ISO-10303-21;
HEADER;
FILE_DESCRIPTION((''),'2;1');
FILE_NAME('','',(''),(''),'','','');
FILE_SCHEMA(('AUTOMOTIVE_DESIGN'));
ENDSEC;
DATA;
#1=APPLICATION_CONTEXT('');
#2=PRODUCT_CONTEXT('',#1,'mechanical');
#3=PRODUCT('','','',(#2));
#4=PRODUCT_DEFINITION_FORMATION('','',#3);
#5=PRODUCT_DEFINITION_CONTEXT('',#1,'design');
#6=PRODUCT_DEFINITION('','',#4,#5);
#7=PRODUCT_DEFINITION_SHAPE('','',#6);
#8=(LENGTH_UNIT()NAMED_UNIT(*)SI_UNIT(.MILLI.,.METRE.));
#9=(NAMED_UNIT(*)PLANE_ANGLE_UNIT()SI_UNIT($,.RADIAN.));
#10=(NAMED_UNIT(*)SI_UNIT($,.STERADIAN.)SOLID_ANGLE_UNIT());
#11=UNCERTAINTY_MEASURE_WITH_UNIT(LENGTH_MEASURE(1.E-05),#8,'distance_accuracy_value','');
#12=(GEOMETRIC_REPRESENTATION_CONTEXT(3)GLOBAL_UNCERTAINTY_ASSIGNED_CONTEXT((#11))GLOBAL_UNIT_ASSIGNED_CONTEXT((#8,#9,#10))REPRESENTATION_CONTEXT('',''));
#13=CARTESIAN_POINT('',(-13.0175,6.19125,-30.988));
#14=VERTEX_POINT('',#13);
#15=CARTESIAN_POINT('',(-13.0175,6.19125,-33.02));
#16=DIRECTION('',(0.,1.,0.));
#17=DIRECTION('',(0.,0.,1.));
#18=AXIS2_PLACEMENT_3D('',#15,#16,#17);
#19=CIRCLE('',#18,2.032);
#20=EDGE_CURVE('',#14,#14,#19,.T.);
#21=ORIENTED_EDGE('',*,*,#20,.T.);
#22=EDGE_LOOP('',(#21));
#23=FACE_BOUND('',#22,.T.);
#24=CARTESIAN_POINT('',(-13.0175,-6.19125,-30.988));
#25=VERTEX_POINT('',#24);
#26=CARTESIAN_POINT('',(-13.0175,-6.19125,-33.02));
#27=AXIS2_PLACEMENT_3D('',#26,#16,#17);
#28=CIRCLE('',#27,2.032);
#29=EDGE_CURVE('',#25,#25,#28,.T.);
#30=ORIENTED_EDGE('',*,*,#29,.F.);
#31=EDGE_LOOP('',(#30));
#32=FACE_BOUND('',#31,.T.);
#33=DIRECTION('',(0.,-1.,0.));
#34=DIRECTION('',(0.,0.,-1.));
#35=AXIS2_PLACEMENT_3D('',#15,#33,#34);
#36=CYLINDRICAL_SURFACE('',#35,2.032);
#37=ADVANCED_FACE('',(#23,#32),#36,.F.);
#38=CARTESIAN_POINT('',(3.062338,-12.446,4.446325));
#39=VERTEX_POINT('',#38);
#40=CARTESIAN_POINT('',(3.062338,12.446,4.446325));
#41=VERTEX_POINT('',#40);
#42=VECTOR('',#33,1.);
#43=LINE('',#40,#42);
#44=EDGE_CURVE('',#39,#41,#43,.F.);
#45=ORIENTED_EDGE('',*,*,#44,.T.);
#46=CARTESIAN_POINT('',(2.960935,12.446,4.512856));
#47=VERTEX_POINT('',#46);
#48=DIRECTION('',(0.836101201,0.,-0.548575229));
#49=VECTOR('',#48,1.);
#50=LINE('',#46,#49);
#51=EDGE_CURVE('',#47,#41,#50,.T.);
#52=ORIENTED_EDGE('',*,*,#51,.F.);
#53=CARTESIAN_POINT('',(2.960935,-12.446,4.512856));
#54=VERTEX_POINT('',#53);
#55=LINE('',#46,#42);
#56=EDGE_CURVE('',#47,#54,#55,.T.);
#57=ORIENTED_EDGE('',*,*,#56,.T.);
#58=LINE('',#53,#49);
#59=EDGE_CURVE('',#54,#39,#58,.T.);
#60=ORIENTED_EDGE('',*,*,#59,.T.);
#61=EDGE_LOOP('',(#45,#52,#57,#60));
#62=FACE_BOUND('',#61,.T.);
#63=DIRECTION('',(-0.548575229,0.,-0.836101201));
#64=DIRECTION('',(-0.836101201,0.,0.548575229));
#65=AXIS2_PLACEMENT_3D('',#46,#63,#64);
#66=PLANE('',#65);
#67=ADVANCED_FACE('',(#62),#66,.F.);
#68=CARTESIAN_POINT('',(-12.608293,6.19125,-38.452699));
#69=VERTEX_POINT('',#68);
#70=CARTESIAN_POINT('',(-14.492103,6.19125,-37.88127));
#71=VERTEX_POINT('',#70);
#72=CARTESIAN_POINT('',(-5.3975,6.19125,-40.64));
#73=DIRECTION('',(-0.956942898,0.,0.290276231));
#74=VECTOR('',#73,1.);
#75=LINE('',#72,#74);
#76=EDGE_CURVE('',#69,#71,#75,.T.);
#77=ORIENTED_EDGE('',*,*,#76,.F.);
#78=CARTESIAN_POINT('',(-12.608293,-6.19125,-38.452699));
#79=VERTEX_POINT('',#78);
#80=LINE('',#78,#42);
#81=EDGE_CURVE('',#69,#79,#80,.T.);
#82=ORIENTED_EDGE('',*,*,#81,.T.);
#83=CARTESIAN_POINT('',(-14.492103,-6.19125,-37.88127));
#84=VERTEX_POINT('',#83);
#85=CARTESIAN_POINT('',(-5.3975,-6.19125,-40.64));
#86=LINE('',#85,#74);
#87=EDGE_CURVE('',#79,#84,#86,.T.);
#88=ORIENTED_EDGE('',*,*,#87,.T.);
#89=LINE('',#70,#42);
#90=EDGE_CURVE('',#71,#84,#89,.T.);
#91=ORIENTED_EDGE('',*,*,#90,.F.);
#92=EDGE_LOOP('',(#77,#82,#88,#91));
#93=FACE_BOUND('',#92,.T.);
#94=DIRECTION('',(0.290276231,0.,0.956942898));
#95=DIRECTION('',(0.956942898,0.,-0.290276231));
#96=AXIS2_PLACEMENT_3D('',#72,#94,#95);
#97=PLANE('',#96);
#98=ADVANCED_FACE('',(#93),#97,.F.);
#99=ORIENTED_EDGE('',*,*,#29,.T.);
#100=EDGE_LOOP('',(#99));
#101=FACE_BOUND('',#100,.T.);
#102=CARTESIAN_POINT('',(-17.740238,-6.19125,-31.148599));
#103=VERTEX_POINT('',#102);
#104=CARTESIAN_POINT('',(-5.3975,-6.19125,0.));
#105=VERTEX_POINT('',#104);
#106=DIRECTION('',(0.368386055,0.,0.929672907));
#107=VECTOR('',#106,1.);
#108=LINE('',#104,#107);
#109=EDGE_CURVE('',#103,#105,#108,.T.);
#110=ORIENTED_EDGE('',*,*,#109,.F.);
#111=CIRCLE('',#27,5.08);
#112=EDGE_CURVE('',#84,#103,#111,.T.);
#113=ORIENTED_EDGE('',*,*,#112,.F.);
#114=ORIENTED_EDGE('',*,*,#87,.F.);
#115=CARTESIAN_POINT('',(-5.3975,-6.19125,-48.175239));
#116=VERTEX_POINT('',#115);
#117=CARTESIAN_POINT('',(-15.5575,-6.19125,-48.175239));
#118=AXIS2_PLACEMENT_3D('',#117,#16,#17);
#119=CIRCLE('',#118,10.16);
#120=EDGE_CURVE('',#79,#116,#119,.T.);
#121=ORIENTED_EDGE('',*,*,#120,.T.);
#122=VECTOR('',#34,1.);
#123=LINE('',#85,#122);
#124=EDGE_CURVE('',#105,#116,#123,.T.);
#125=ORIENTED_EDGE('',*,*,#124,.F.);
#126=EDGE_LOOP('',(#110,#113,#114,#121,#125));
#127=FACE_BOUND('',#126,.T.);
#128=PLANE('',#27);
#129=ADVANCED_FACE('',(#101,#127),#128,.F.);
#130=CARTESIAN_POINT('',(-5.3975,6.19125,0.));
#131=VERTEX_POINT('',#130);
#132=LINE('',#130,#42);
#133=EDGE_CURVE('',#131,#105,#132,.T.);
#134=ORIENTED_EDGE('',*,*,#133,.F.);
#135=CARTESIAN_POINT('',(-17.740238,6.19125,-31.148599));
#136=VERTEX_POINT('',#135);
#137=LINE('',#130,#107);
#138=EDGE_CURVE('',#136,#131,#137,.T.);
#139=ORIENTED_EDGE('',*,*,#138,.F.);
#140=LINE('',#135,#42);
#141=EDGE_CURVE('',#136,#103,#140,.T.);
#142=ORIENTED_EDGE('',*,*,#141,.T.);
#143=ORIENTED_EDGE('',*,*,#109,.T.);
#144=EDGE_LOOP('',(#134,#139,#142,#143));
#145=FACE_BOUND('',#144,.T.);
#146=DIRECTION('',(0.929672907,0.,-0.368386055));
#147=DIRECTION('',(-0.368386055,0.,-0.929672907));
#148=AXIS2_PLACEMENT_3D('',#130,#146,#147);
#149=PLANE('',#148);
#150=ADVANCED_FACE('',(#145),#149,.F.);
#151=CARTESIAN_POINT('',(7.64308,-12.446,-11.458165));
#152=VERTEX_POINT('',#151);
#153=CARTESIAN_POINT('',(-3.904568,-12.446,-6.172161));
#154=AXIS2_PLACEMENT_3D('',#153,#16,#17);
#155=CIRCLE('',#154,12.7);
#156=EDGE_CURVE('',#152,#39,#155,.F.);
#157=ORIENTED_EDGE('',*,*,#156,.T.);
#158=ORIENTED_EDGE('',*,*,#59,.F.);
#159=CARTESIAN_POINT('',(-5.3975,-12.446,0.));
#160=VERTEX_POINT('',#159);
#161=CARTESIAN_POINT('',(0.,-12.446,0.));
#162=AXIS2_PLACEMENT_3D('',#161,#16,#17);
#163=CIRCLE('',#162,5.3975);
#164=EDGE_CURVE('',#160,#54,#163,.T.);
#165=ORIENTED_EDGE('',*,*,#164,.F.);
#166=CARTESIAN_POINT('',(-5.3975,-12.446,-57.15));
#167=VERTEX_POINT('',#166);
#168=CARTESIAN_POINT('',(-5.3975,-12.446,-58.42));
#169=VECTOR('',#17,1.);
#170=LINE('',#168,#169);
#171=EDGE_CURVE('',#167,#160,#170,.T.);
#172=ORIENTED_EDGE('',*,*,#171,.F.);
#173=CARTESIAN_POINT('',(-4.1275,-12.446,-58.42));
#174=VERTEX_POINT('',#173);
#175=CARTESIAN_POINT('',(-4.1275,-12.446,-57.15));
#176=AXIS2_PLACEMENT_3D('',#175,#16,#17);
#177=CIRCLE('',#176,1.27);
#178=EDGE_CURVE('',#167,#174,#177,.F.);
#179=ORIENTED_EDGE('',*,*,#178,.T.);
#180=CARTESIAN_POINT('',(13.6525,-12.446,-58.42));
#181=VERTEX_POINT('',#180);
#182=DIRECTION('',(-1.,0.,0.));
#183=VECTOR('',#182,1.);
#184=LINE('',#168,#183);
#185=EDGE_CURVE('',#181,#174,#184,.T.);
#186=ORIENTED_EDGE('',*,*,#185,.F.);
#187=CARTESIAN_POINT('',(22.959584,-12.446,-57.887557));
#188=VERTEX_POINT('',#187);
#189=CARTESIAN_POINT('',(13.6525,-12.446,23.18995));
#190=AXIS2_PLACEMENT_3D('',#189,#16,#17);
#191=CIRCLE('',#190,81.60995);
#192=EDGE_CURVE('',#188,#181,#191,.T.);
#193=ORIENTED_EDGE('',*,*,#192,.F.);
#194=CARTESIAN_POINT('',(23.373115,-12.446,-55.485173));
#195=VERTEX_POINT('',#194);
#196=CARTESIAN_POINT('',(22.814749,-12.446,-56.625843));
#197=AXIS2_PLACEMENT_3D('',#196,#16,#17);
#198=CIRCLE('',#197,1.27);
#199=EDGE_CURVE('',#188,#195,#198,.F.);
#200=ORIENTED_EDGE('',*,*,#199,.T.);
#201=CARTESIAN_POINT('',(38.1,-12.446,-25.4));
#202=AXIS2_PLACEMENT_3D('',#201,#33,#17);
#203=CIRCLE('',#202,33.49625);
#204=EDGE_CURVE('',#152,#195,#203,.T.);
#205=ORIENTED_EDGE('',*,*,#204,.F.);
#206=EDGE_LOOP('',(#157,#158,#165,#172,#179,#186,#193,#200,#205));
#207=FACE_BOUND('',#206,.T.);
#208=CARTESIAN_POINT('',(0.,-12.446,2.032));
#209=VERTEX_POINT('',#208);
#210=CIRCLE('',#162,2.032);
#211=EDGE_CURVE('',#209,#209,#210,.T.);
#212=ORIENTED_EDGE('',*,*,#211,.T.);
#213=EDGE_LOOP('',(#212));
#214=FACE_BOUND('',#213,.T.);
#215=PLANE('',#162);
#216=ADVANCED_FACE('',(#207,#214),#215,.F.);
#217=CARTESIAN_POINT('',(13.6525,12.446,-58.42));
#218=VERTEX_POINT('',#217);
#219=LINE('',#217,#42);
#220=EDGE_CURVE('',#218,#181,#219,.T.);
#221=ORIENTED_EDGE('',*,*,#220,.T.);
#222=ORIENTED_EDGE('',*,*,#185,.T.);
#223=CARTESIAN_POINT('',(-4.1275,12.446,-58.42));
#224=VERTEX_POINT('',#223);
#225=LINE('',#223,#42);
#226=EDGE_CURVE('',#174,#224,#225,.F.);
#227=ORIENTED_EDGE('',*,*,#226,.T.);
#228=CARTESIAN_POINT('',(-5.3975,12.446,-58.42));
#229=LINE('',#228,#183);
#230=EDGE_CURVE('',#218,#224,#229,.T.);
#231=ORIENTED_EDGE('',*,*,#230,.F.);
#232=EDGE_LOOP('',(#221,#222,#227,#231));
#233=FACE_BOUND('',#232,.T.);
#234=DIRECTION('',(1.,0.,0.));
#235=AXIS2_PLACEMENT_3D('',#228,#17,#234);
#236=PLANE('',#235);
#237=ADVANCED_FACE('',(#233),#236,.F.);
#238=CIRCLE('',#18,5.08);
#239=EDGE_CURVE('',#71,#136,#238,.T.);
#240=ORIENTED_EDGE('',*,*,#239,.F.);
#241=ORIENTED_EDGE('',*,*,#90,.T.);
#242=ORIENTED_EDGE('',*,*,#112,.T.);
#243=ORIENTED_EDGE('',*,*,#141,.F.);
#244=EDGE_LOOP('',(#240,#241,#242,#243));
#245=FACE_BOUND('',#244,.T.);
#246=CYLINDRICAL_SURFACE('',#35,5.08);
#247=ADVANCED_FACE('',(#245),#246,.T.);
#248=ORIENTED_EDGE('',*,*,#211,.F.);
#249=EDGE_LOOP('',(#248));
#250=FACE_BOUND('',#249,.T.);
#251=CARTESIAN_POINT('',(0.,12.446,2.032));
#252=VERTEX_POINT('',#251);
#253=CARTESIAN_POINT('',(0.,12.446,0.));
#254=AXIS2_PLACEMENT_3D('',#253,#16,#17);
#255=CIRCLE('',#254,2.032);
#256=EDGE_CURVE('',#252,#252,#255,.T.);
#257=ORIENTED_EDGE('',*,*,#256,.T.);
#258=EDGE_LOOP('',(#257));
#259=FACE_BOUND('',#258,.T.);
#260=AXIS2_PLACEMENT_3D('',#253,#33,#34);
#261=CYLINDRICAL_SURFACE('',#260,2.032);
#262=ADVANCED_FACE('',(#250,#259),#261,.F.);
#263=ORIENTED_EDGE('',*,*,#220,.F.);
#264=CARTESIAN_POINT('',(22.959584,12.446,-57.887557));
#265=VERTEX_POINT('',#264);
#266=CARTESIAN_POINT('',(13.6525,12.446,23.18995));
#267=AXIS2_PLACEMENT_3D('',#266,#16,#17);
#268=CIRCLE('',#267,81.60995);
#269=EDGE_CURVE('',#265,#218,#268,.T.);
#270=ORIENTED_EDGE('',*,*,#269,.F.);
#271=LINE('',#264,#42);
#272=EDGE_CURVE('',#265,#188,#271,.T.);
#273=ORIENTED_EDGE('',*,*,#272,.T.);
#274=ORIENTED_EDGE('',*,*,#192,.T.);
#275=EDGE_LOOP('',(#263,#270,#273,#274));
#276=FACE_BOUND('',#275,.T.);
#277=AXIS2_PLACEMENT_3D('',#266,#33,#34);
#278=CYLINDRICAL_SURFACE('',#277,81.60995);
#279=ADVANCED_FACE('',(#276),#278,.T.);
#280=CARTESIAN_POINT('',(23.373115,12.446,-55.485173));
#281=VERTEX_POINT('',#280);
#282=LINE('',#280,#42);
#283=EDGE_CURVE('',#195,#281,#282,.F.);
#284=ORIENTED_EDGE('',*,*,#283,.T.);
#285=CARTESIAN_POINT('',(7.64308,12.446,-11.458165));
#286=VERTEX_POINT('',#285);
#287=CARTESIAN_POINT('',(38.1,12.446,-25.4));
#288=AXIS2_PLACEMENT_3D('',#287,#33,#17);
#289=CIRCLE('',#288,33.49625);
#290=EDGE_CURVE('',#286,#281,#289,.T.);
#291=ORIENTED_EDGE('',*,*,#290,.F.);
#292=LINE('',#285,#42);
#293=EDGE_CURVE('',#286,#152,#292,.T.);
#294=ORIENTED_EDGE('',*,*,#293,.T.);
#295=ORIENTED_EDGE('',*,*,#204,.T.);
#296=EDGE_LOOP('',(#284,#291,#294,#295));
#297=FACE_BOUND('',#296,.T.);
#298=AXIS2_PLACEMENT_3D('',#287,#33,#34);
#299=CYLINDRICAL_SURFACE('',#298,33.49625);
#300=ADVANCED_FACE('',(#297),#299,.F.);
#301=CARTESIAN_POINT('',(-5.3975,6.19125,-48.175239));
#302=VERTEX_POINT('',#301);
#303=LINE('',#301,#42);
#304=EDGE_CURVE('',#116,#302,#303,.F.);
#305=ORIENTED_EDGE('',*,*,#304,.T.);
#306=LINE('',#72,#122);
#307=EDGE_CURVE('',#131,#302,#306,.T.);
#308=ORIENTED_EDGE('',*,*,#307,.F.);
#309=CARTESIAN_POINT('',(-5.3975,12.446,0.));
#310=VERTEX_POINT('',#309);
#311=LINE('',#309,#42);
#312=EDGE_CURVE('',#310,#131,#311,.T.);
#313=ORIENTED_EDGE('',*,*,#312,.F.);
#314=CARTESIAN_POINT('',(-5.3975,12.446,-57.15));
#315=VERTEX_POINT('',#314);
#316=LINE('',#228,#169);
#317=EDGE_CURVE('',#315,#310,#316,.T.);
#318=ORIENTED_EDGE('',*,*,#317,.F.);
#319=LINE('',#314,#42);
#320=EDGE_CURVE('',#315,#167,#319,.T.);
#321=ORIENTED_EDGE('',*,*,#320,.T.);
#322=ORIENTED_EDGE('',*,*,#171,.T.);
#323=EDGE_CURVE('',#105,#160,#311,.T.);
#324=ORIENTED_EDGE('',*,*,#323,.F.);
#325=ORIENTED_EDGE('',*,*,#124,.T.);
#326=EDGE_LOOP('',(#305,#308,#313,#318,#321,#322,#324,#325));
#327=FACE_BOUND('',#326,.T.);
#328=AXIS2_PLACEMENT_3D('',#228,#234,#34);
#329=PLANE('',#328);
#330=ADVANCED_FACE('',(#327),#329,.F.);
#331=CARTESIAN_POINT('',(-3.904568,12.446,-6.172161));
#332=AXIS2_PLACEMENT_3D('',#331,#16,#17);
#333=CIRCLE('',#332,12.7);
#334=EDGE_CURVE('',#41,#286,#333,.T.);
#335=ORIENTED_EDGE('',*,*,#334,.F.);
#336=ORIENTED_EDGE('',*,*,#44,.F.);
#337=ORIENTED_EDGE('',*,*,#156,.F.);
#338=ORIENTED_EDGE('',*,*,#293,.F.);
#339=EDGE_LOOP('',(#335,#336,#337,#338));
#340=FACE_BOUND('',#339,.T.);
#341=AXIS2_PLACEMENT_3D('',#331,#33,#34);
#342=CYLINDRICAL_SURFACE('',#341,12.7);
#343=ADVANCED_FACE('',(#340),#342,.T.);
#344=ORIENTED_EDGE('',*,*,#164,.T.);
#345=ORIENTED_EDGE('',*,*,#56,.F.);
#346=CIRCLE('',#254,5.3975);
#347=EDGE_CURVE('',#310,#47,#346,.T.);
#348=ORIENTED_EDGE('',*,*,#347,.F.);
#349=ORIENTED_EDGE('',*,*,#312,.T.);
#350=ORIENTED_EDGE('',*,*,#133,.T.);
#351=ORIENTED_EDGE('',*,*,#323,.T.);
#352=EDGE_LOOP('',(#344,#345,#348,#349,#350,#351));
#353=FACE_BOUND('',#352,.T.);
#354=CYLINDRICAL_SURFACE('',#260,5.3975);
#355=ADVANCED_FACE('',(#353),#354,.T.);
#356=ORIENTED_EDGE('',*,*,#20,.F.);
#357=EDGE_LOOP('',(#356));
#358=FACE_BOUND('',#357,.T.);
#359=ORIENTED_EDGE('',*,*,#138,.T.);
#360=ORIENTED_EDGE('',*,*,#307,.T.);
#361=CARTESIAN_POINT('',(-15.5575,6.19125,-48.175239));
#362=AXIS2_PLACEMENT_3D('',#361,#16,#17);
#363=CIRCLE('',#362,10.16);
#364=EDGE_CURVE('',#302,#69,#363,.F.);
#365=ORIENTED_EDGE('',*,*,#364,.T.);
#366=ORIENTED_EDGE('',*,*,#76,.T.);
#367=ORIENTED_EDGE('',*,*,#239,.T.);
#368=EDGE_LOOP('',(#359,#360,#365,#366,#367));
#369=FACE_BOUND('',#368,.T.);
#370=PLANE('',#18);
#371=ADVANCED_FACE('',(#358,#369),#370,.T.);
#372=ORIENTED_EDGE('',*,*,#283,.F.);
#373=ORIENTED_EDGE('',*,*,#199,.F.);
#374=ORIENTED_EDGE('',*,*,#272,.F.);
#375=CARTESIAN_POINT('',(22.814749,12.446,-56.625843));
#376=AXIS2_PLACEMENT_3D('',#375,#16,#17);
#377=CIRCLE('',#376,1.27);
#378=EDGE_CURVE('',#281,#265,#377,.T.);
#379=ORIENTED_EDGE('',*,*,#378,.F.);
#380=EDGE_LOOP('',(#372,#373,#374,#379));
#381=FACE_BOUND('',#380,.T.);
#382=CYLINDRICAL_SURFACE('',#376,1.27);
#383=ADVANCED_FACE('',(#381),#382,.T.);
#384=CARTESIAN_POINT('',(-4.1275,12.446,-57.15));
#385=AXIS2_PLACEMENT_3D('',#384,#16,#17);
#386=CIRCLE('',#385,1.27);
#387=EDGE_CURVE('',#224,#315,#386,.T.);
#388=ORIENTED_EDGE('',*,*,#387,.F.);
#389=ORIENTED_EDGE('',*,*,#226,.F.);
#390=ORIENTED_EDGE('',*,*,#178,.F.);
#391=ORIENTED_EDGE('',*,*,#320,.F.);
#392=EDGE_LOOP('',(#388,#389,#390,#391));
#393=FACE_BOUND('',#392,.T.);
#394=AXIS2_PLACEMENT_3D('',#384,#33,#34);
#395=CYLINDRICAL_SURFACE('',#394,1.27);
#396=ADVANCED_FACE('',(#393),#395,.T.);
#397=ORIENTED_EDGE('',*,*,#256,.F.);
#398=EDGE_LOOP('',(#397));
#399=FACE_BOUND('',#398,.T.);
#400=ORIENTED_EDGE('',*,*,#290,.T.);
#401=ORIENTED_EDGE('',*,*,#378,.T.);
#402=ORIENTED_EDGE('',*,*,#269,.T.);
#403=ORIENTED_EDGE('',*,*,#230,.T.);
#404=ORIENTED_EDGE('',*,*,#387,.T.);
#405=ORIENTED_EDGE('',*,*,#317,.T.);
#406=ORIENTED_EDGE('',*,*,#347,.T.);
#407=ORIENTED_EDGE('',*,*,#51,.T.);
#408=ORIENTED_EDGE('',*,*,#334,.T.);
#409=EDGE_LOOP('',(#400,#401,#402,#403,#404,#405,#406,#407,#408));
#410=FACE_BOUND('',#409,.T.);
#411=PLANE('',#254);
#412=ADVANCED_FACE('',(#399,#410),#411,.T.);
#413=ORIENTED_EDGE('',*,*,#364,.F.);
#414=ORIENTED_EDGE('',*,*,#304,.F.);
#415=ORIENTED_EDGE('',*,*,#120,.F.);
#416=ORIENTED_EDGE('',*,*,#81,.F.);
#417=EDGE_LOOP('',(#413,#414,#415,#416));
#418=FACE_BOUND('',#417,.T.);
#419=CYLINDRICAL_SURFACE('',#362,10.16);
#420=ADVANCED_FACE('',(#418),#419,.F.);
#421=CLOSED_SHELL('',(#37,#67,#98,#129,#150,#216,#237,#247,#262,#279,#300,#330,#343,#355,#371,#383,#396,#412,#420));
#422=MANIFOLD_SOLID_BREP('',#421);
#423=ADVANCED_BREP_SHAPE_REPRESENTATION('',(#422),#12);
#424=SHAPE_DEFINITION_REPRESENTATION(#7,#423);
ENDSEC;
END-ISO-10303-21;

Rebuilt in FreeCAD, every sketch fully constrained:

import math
import FreeCAD as App
import Part
import Sketcher
from FreeCAD import Vector
Q = App.Units.Quantity


def edges_at(feature, points):
    """Names of the edges that pass closest to the given points."""
    edges = feature.Shape.Edges
    near = lambda p: min(range(len(edges)), key=lambda i: edges[i].distToShape(Part.Vertex(*p))[0])
    return sorted({f"Edge{near(p) + 1}" for p in points})

doc = App.newDocument("Part")
body = doc.addObject("PartDesign::Body", "Body")

# Sketch on XZ plane
sketch1 = body.newObject("Sketcher::SketchObject", "Sketch")
sketch1.AttachmentSupport = (doc.getObject("XZ_Plane"), [""])
sketch1.MapMode = "FlatFace"
sketch1.addGeometry([
    Part.LineSegment(Vector(3, 4.5, 0), Vector(13.7, -2.5, 0)),  # 0
    Part.ArcOfCircle(Part.Circle(Vector(38.1, -25.4, 0), Vector(0, 0, 1), 33.5), math.radians(137), math.radians(252)),  # 1
    Part.ArcOfCircle(Part.Circle(Vector(13.7, 23.2, 0), Vector(0, 0, 1), 81.6), math.radians(-90), math.radians(-80.14)),  # 2
    Part.LineSegment(Vector(13.7, -58.4, 0), Vector(-5.4, -58.4, 0)),  # 3
    Part.LineSegment(Vector(-5.4, -58.4, 0), Vector(-5.4, 0, 0)),  # 4
    Part.ArcOfCircle(Part.Circle(Vector(0, 0, 0), Vector(0, 0, 1), 5.4), math.radians(57), math.radians(180)),  # 5
    Part.Circle(Vector(0, 0, 0), Vector(0, 0, 1), 2),  # 6
], False)
sketch1.addConstraint([
    Sketcher.Constraint("Coincident", 0, 2, 1, 1),
    Sketcher.Constraint("Coincident", 1, 2, 2, 2),
    Sketcher.Constraint("Tangent", 2, 1, 3, 1),
    Sketcher.Constraint("Coincident", 3, 2, 4, 1),
    Sketcher.Constraint("Tangent", 4, 2, 5, 2),
    Sketcher.Constraint("Tangent", 5, 1, 0, 1),
    Sketcher.Constraint("Horizontal", 3),
    Sketcher.Constraint("Vertical", 4),
    Sketcher.Constraint("Coincident", 5, 3, -1, 1),
    Sketcher.Constraint("Coincident", 6, 3, -1, 1),
    Sketcher.Constraint("Vertical", 2, 3, 0, 2),
    Sketcher.Constraint("Diameter", 6, Q("0.16 in")),
    Sketcher.Constraint("DistanceY", 4, 1, 4, 2, Q("2.3 in")),
    Sketcher.Constraint("DistanceY", 1, 3, -1, 1, Q("1 in")),
    Sketcher.Constraint("DistanceX", 3, 2, 3, 1, Q("0.75 in")),
    Sketcher.Constraint("DistanceX", -1, 1, 1, 3, Q("1.5 in")),
    Sketcher.Constraint("Radius", 5, Q("0.2125 in")),
    Sketcher.Constraint("DistanceX", 3, 2, 1, 2, Q("1.3 in")),
    Sketcher.Constraint("Radius", 1, Q("33.49625 mm")),
])
pad1 = body.newObject("PartDesign::Pad", "Pad")
pad1.Profile = sketch1
pad1.Length = Q("0.98 in")
pad1.Midplane = True
doc.recompute()

fillet = body.newObject("PartDesign::Fillet", "Fillet")
fillet.Base = (pad1, edges_at(pad1, [(13.652, 0, -2.502)]))
fillet.Radius = Q("0.5 in")

# Sketch on XZ plane
sketch2 = body.newObject("Sketcher::SketchObject", "Sketch001")
sketch2.AttachmentSupport = (doc.getObject("XZ_Plane"), [""])
sketch2.MapMode = "FlatFace"
sketch2.addGeometry([
    Part.LineSegment(Vector(-5.4, -40.6, 0), Vector(-14.5, -37.9, 0)),  # 0
    Part.ArcOfCircle(Part.Circle(Vector(-13, -33, 0), Vector(0, 0, 1), 5.1), math.radians(158), math.radians(253)),  # 1
    Part.LineSegment(Vector(-17.7, -31.1, 0), Vector(-5.4, 0, 0)),  # 2
    Part.LineSegment(Vector(-5.4, 0, 0), Vector(-5.4, -40.6, 0)),  # 3
    Part.Circle(Vector(-13, -33, 0), Vector(0, 0, 1), 2),  # 4
], False)
sketch2.addConstraint([
    Sketcher.Constraint("Tangent", 0, 2, 1, 2),
    Sketcher.Constraint("Tangent", 1, 1, 2, 1),
    Sketcher.Constraint("Coincident", 2, 2, 3, 1),
    Sketcher.Constraint("Coincident", 3, 2, 0, 1),
    Sketcher.Constraint("Vertical", 3),
    Sketcher.Constraint("Coincident", 4, 3, 1, 3),
    Sketcher.Constraint("PointOnObject", 2, 2, -1),
    Sketcher.Constraint("Radius", 1, Q("0.2 in")),
    Sketcher.Constraint("Diameter", 4, Q("0.16 in")),
    Sketcher.Constraint("DistanceY", 3, 2, 3, 1, Q("1.6 in")),
    Sketcher.Constraint("DistanceY", 1, 3, -1, 1, Q("1.3 in")),
    Sketcher.Constraint("DistanceX", 1, 3, 2, 2, Q("0.3 in")),
    Sketcher.Constraint("DistanceX", 1, 3, -1, 1, Q("0.5125 in")),
])
pad2 = body.newObject("PartDesign::Pad", "Pad001")
pad2.Profile = sketch2
pad2.Length = Q("0.4875 in")
pad2.Midplane = True
doc.recompute()

fillet2 = body.newObject("PartDesign::Fillet", "Fillet001")
fillet2.Base = (pad2, edges_at(pad2, [(-5.397, 0, -40.64)]))
fillet2.Radius = Q("0.4 in")
doc.recompute()

fillet3 = body.newObject("PartDesign::Fillet", "Fillet002")
fillet3.Base = (fillet2, edges_at(fillet2, [(-5.397, 0, -58.42), (27.622, 0, -57.215)]))
fillet3.Radius = Q("0.05 in")

doc.recompute()
